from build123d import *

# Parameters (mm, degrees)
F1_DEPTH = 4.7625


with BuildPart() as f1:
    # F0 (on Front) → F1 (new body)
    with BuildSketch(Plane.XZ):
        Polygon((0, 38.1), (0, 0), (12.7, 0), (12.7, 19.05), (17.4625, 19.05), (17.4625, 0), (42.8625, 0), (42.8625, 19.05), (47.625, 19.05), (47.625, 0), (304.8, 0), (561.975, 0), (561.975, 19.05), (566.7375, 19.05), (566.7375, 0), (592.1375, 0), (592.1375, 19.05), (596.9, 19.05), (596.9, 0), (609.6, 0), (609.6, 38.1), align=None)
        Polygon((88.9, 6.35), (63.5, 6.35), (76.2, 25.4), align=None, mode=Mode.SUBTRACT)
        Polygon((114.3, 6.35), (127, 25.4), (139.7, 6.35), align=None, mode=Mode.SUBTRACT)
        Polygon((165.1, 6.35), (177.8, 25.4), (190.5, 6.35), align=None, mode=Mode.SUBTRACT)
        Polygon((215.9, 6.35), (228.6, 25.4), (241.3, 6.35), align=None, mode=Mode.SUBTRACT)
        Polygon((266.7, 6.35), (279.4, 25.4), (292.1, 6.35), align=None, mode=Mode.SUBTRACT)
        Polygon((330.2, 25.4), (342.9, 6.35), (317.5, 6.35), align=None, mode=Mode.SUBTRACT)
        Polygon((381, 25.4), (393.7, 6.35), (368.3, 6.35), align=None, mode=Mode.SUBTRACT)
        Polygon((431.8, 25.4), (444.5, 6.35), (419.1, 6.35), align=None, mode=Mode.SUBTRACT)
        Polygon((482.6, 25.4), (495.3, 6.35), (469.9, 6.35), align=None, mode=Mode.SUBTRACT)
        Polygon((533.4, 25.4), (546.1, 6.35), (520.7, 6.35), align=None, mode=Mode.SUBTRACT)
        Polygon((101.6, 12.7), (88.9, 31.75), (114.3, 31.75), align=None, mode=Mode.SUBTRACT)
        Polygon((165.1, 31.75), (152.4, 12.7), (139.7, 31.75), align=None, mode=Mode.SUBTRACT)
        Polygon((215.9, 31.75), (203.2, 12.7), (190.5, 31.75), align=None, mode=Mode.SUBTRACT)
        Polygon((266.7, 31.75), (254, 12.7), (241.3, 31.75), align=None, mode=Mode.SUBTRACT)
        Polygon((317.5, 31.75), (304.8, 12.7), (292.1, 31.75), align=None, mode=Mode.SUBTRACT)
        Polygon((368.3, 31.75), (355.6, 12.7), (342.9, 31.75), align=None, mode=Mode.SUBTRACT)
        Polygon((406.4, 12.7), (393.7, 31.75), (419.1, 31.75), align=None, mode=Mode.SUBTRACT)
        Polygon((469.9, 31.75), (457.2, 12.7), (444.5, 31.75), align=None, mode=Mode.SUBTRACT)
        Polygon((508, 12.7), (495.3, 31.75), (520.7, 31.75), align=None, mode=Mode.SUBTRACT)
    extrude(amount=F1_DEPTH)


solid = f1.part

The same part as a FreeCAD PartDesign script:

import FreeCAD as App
import Part
import Sketcher

V = App.Vector
Q = App.Units.Quantity

doc = App.newDocument("Part")
body = doc.addObject("PartDesign::Body", "Body")

# Sketch on XZ plane
sketch1 = body.newObject("Sketcher::SketchObject", "Sketch")
sketch1.AttachmentSupport = (doc.getObject("XZ_Plane"), [""])
sketch1.MapMode = "FlatFace"
sketch1.addGeometry(Part.LineSegment(V(0, 38.1, 0), V(0, 0, 0)), False)
sketch1.addGeometry(Part.LineSegment(V(0, 0, 0), V(12.7, 0, 0)), False)
sketch1.addGeometry(Part.LineSegment(V(12.7, 0, 0), V(12.7, 19.1, 0)), False)
sketch1.addGeometry(Part.LineSegment(V(12.7, 19.1, 0), V(17.5, 19.1, 0)), False)
sketch1.addGeometry(Part.LineSegment(V(17.5, 19.1, 0), V(17.5, 0, 0)), False)
sketch1.addGeometry(Part.LineSegment(V(17.5, 0, 0), V(42.9, 0, 0)), False)
sketch1.addGeometry(Part.LineSegment(V(42.9, 0, 0), V(42.9, 19.1, 0)), False)
sketch1.addGeometry(Part.LineSegment(V(42.9, 19.1, 0), V(47.6, 19.1, 0)), False)
sketch1.addGeometry(Part.LineSegment(V(47.6, 19.1, 0), V(47.6, 0, 0)), False)
sketch1.addGeometry(Part.LineSegment(V(47.6, 0, 0), V(562, 0, 0)), False)
sketch1.addGeometry(Part.LineSegment(V(562, 0, 0), V(562, 19.1, 0)), False)
sketch1.addGeometry(Part.LineSegment(V(562, 19.1, 0), V(566.7, 19.1, 0)), False)
sketch1.addGeometry(Part.LineSegment(V(566.7, 19.1, 0), V(566.7, 0, 0)), False)
sketch1.addGeometry(Part.LineSegment(V(566.7, 0, 0), V(592.1, 0, 0)), False)
sketch1.addGeometry(Part.LineSegment(V(592.1, 0, 0), V(592.1, 19.1, 0)), False)
sketch1.addGeometry(Part.LineSegment(V(592.1, 19.1, 0), V(596.9, 19.1, 0)), False)
sketch1.addGeometry(Part.LineSegment(V(596.9, 19.1, 0), V(596.9, 0, 0)), False)
sketch1.addGeometry(Part.LineSegment(V(596.9, 0, 0), V(609.6, 0, 0)), False)
sketch1.addGeometry(Part.LineSegment(V(609.6, 0, 0), V(609.6, 38.1, 0)), False)
sketch1.addGeometry(Part.LineSegment(V(609.6, 38.1, 0), V(0, 38.1, 0)), False)
sketch1.addGeometry(Part.LineSegment(V(76.2, 25.4, 0), V(88.9, 6.3, 0)), False)
sketch1.addGeometry(Part.LineSegment(V(88.9, 6.3, 0), V(63.5, 6.3, 0)), False)
sketch1.addGeometry(Part.LineSegment(V(63.5, 6.3, 0), V(76.2, 25.4, 0)), False)
sketch1.addGeometry(Part.LineSegment(V(139.7, 6.3, 0), V(114.3, 6.3, 0)), False)
sketch1.addGeometry(Part.LineSegment(V(114.3, 6.3, 0), V(127, 25.4, 0)), False)
sketch1.addGeometry(Part.LineSegment(V(127, 25.4, 0), V(139.7, 6.3, 0)), False)
sketch1.addGeometry(Part.LineSegment(V(190.5, 6.3, 0), V(165.1, 6.3, 0)), False)
sketch1.addGeometry(Part.LineSegment(V(165.1, 6.3, 0), V(177.8, 25.4, 0)), False)
sketch1.addGeometry(Part.LineSegment(V(177.8, 25.4, 0), V(190.5, 6.3, 0)), False)
sketch1.addGeometry(Part.LineSegment(V(241.3, 6.3, 0), V(215.9, 6.3, 0)), False)
sketch1.addGeometry(Part.LineSegment(V(215.9, 6.3, 0), V(228.6, 25.4, 0)), False)
sketch1.addGeometry(Part.LineSegment(V(228.6, 25.4, 0), V(241.3, 6.3, 0)), False)
sketch1.addGeometry(Part.LineSegment(V(292.1, 6.3, 0), V(266.7, 6.3, 0)), False)
sketch1.addGeometry(Part.LineSegment(V(266.7, 6.3, 0), V(279.4, 25.4, 0)), False)
sketch1.addGeometry(Part.LineSegment(V(279.4, 25.4, 0), V(292.1, 6.3, 0)), False)
sketch1.addGeometry(Part.LineSegment(V(317.5, 6.3, 0), V(330.2, 25.4, 0)), False)
sketch1.addGeometry(Part.LineSegment(V(330.2, 25.4, 0), V(342.9, 6.3, 0)), False)
sketch1.addGeometry(Part.LineSegment(V(342.9, 6.3, 0), V(317.5, 6.3, 0)), False)
sketch1.addGeometry(Part.LineSegment(V(368.3, 6.3, 0), V(381, 25.4, 0)), False)
sketch1.addGeometry(Part.LineSegment(V(381, 25.4, 0), V(393.7, 6.3, 0)), False)
sketch1.addGeometry(Part.LineSegment(V(393.7, 6.3, 0), V(368.3, 6.3, 0)), False)
sketch1.addGeometry(Part.LineSegment(V(419.1, 6.3, 0), V(431.8, 25.4, 0)), False)
sketch1.addGeometry(Part.LineSegment(V(431.8, 25.4, 0), V(444.5, 6.3, 0)), False)
sketch1.addGeometry(Part.LineSegment(V(444.5, 6.3, 0), V(419.1, 6.3, 0)), False)
sketch1.addGeometry(Part.LineSegment(V(469.9, 6.3, 0), V(482.6, 25.4, 0)), False)
sketch1.addGeometry(Part.LineSegment(V(482.6, 25.4, 0), V(495.3, 6.3, 0)), False)
sketch1.addGeometry(Part.LineSegment(V(495.3, 6.3, 0), V(469.9, 6.3, 0)), False)
sketch1.addGeometry(Part.LineSegment(V(520.7, 6.3, 0), V(533.4, 25.4, 0)), False)
sketch1.addGeometry(Part.LineSegment(V(533.4, 25.4, 0), V(546.1, 6.3, 0)), False)
sketch1.addGeometry(Part.LineSegment(V(546.1, 6.3, 0), V(520.7, 6.3, 0)), False)
sketch1.addGeometry(Part.LineSegment(V(114.3, 31.8, 0), V(101.6, 12.7, 0)), False)
sketch1.addGeometry(Part.LineSegment(V(101.6, 12.7, 0), V(88.9, 31.8, 0)), False)
sketch1.addGeometry(Part.LineSegment(V(88.9, 31.8, 0), V(114.3, 31.8, 0)), False)
sketch1.addGeometry(Part.LineSegment(V(139.7, 31.8, 0), V(165.1, 31.8, 0)), False)
sketch1.addGeometry(Part.LineSegment(V(165.1, 31.8, 0), V(152.4, 12.7, 0)), False)
sketch1.addGeometry(Part.LineSegment(V(152.4, 12.7, 0), V(139.7, 31.8, 0)), False)
sketch1.addGeometry(Part.LineSegment(V(190.5, 31.8, 0), V(215.9, 31.8, 0)), False)
sketch1.addGeometry(Part.LineSegment(V(215.9, 31.8, 0), V(203.2, 12.7, 0)), False)
sketch1.addGeometry(Part.LineSegment(V(203.2, 12.7, 0), V(190.5, 31.8, 0)), False)
sketch1.addGeometry(Part.LineSegment(V(241.3, 31.8, 0), V(266.7, 31.8, 0)), False)
sketch1.addGeometry(Part.LineSegment(V(266.7, 31.8, 0), V(254, 12.7, 0)), False)
sketch1.addGeometry(Part.LineSegment(V(254, 12.7, 0), V(241.3, 31.8, 0)), False)
sketch1.addGeometry(Part.LineSegment(V(292.1, 31.8, 0), V(317.5, 31.8, 0)), False)
sketch1.addGeometry(Part.LineSegment(V(317.5, 31.8, 0), V(304.8, 12.7, 0)), False)
sketch1.addGeometry(Part.LineSegment(V(304.8, 12.7, 0), V(292.1, 31.8, 0)), False)
sketch1.addGeometry(Part.LineSegment(V(342.9, 31.8, 0), V(368.3, 31.8, 0)), False)
sketch1.addGeometry(Part.LineSegment(V(368.3, 31.8, 0), V(355.6, 12.7, 0)), False)
sketch1.addGeometry(Part.LineSegment(V(355.6, 12.7, 0), V(342.9, 31.8, 0)), False)
sketch1.addGeometry(Part.LineSegment(V(419.1, 31.8, 0), V(406.4, 12.7, 0)), False)
sketch1.addGeometry(Part.LineSegment(V(406.4, 12.7, 0), V(393.7, 31.8, 0)), False)
sketch1.addGeometry(Part.LineSegment(V(393.7, 31.8, 0), V(419.1, 31.8, 0)), False)
sketch1.addGeometry(Part.LineSegment(V(444.5, 31.8, 0), V(469.9, 31.8, 0)), False)
sketch1.addGeometry(Part.LineSegment(V(469.9, 31.8, 0), V(457.2, 12.7, 0)), False)
sketch1.addGeometry(Part.LineSegment(V(457.2, 12.7, 0), V(444.5, 31.8, 0)), False)
sketch1.addGeometry(Part.LineSegment(V(520.7, 31.8, 0), V(508, 12.7, 0)), False)
sketch1.addGeometry(Part.LineSegment(V(508, 12.7, 0), V(495.3, 31.8, 0)), False)
sketch1.addGeometry(Part.LineSegment(V(495.3, 31.8, 0), V(520.7, 31.8, 0)), False)
sketch1.addConstraint(Sketcher.Constraint("Coincident", 0, 2, 1, 1))
sketch1.addConstraint(Sketcher.Constraint("Coincident", 1, 2, 2, 1))
sketch1.addConstraint(Sketcher.Constraint("Coincident", 2, 2, 3, 1))
sketch1.addConstraint(Sketcher.Constraint("Coincident", 3, 2, 4, 1))
sketch1.addConstraint(Sketcher.Constraint("Coincident", 4, 2, 5, 1))
sketch1.addConstraint(Sketcher.Constraint("Coincident", 5, 2, 6, 1))
sketch1.addConstraint(Sketcher.Constraint("Coincident", 6, 2, 7, 1))
sketch1.addConstraint(Sketcher.Constraint("Coincident", 7, 2, 8, 1))
sketch1.addConstraint(Sketcher.Constraint("Coincident", 8, 2, 9, 1))
sketch1.addConstraint(Sketcher.Constraint("Coincident", 9, 2, 10, 1))
sketch1.addConstraint(Sketcher.Constraint("Coincident", 10, 2, 11, 1))
sketch1.addConstraint(Sketcher.Constraint("Coincident", 11, 2, 12, 1))
sketch1.addConstraint(Sketcher.Constraint("Coincident", 12, 2, 13, 1))
sketch1.addConstraint(Sketcher.Constraint("Coincident", 13, 2, 14, 1))
sketch1.addConstraint(Sketcher.Constraint("Coincident", 14, 2, 15, 1))
sketch1.addConstraint(Sketcher.Constraint("Coincident", 15, 2, 16, 1))
sketch1.addConstraint(Sketcher.Constraint("Coincident", 16, 2, 17, 1))
sketch1.addConstraint(Sketcher.Constraint("Coincident", 17, 2, 18, 1))
sketch1.addConstraint(Sketcher.Constraint("Coincident", 18, 2, 19, 1))
sketch1.addConstraint(Sketcher.Constraint("Coincident", 19, 2, 0, 1))
sketch1.addConstraint(Sketcher.Constraint("Coincident", 20, 2, 21, 1))
sketch1.addConstraint(Sketcher.Constraint("Coincident", 21, 2, 22, 1))
sketch1.addConstraint(Sketcher.Constraint("Coincident", 22, 2, 20, 1))
sketch1.addConstraint(Sketcher.Constraint("Coincident", 23, 2, 24, 1))
sketch1.addConstraint(Sketcher.Constraint("Coincident", 24, 2, 25, 1))
sketch1.addConstraint(Sketcher.Constraint("Coincident", 25, 2, 23, 1))
sketch1.addConstraint(Sketcher.Constraint("Coincident", 26, 2, 27, 1))
sketch1.addConstraint(Sketcher.Constraint("Coincident", 27, 2, 28, 1))
sketch1.addConstraint(Sketcher.Constraint("Coincident", 28, 2, 26, 1))
sketch1.addConstraint(Sketcher.Constraint("Coincident", 29, 2, 30, 1))
sketch1.addConstraint(Sketcher.Constraint("Coincident", 30, 2, 31, 1))
sketch1.addConstraint(Sketcher.Constraint("Coincident", 31, 2, 29, 1))
sketch1.addConstraint(Sketcher.Constraint("Coincident", 32, 2, 33, 1))
sketch1.addConstraint(Sketcher.Constraint("Coincident", 33, 2, 34, 1))
sketch1.addConstraint(Sketcher.Constraint("Coincident", 34, 2, 32, 1))
sketch1.addConstraint(Sketcher.Constraint("Coincident", 35, 2, 36, 1))
sketch1.addConstraint(Sketcher.Constraint("Coincident", 36, 2, 37, 1))
sketch1.addConstraint(Sketcher.Constraint("Coincident", 37, 2, 35, 1))
sketch1.addConstraint(Sketcher.Constraint("Coincident", 38, 2, 39, 1))
sketch1.addConstraint(Sketcher.Constraint("Coincident", 39, 2, 40, 1))
sketch1.addConstraint(Sketcher.Constraint("Coincident", 40, 2, 38, 1))
sketch1.addConstraint(Sketcher.Constraint("Coincident", 41, 2, 42, 1))
sketch1.addConstraint(Sketcher.Constraint("Coincident", 42, 2, 43, 1))
sketch1.addConstraint(Sketcher.Constraint("Coincident", 43, 2, 41, 1))
sketch1.addConstraint(Sketcher.Constraint("Coincident", 44, 2, 45, 1))
sketch1.addConstraint(Sketcher.Constraint("Coincident", 45, 2, 46, 1))
sketch1.addConstraint(Sketcher.Constraint("Coincident", 46, 2, 44, 1))
sketch1.addConstraint(Sketcher.Constraint("Coincident", 47, 2, 48, 1))
sketch1.addConstraint(Sketcher.Constraint("Coincident", 48, 2, 49, 1))
sketch1.addConstraint(Sketcher.Constraint("Coincident", 49, 2, 47, 1))
sketch1.addConstraint(Sketcher.Constraint("Coincident", 50, 2, 51, 1))
sketch1.addConstraint(Sketcher.Constraint("Coincident", 51, 2, 52, 1))
sketch1.addConstraint(Sketcher.Constraint("Coincident", 52, 2, 50, 1))
sketch1.addConstraint(Sketcher.Constraint("Coincident", 53, 2, 54, 1))
sketch1.addConstraint(Sketcher.Constraint("Coincident", 54, 2, 55, 1))
sketch1.addConstraint(Sketcher.Constraint("Coincident", 55, 2, 53, 1))
sketch1.addConstraint(Sketcher.Constraint("Coincident", 56, 2, 57, 1))
sketch1.addConstraint(Sketcher.Constraint("Coincident", 57, 2, 58, 1))
sketch1.addConstraint(Sketcher.Constraint("Coincident", 58, 2, 56, 1))
sketch1.addConstraint(Sketcher.Constraint("Coincident", 59, 2, 60, 1))
sketch1.addConstraint(Sketcher.Constraint("Coincident", 60, 2, 61, 1))
sketch1.addConstraint(Sketcher.Constraint("Coincident", 61, 2, 59, 1))
sketch1.addConstraint(Sketcher.Constraint("Coincident", 62, 2, 63, 1))
sketch1.addConstraint(Sketcher.Constraint("Coincident", 63, 2, 64, 1))
sketch1.addConstraint(Sketcher.Constraint("Coincident", 64, 2, 62, 1))
sketch1.addConstraint(Sketcher.Constraint("Coincident", 65, 2, 66, 1))
sketch1.addConstraint(Sketcher.Constraint("Coincident", 66, 2, 67, 1))
sketch1.addConstraint(Sketcher.Constraint("Coincident", 67, 2, 65, 1))
sketch1.addConstraint(Sketcher.Constraint("Coincident", 68, 2, 69, 1))
sketch1.addConstraint(Sketcher.Constraint("Coincident", 69, 2, 70, 1))
sketch1.addConstraint(Sketcher.Constraint("Coincident", 70, 2, 68, 1))
sketch1.addConstraint(Sketcher.Constraint("Coincident", 71, 2, 72, 1))
sketch1.addConstraint(Sketcher.Constraint("Coincident", 72, 2, 73, 1))
sketch1.addConstraint(Sketcher.Constraint("Coincident", 73, 2, 71, 1))
sketch1.addConstraint(Sketcher.Constraint("Coincident", 74, 2, 75, 1))
sketch1.addConstraint(Sketcher.Constraint("Coincident", 75, 2, 76, 1))
sketch1.addConstraint(Sketcher.Constraint("Coincident", 76, 2, 74, 1))
sketch1.addConstraint(Sketcher.Constraint("Vertical", 0))
sketch1.addConstraint(Sketcher.Constraint("Horizontal", 1))
sketch1.addConstraint(Sketcher.Constraint("Vertical", 2))
sketch1.addConstraint(Sketcher.Constraint("Horizontal", 3))
sketch1.addConstraint(Sketcher.Constraint("Vertical", 4))
sketch1.addConstraint(Sketcher.Constraint("Horizontal", 5))
sketch1.addConstraint(Sketcher.Constraint("Vertical", 6))
sketch1.addConstraint(Sketcher.Constraint("Horizontal", 7))
sketch1.addConstraint(Sketcher.Constraint("Vertical", 8))
sketch1.addConstraint(Sketcher.Constraint("Horizontal", 9))
sketch1.addConstraint(Sketcher.Constraint("Vertical", 10))
sketch1.addConstraint(Sketcher.Constraint("Horizontal", 11))
sketch1.addConstraint(Sketcher.Constraint("Vertical", 12))
sketch1.addConstraint(Sketcher.Constraint("Horizontal", 13))
sketch1.addConstraint(Sketcher.Constraint("Vertical", 14))
sketch1.addConstraint(Sketcher.Constraint("Horizontal", 15))
sketch1.addConstraint(Sketcher.Constraint("Vertical", 16))
sketch1.addConstraint(Sketcher.Constraint("Horizontal", 17))
sketch1.addConstraint(Sketcher.Constraint("Vertical", 18))
sketch1.addConstraint(Sketcher.Constraint("Horizontal", 19))
sketch1.addConstraint(Sketcher.Constraint("Horizontal", 21))
sketch1.addConstraint(Sketcher.Constraint("Horizontal", 23))
sketch1.addConstraint(Sketcher.Constraint("Horizontal", 26))
sketch1.addConstraint(Sketcher.Constraint("Horizontal", 29))
sketch1.addConstraint(Sketcher.Constraint("Horizontal", 32))
sketch1.addConstraint(Sketcher.Constraint("Horizontal", 37))
sketch1.addConstraint(Sketcher.Constraint("Horizontal", 40))
sketch1.addConstraint(Sketcher.Constraint("Horizontal", 43))
sketch1.addConstraint(Sketcher.Constraint("Horizontal", 46))
sketch1.addConstraint(Sketcher.Constraint("Horizontal", 49))
sketch1.addConstraint(Sketcher.Constraint("Horizontal", 52))
sketch1.addConstraint(Sketcher.Constraint("Horizontal", 53))
sketch1.addConstraint(Sketcher.Constraint("Horizontal", 56))
sketch1.addConstraint(Sketcher.Constraint("Horizontal", 59))
sketch1.addConstraint(Sketcher.Constraint("Horizontal", 62))
sketch1.addConstraint(Sketcher.Constraint("Horizontal", 65))
sketch1.addConstraint(Sketcher.Constraint("Horizontal", 70))
sketch1.addConstraint(Sketcher.Constraint("Horizontal", 71))
sketch1.addConstraint(Sketcher.Constraint("Horizontal", 76))
sketch1.addConstraint(Sketcher.Constraint("Coincident", 0, 2, -1, 1))
sketch1.addConstraint(Sketcher.Constraint("PointOnObject", 4, 2, -1))
sketch1.addConstraint(Sketcher.Constraint("PointOnObject", 8, 2, -1))
sketch1.addConstraint(Sketcher.Constraint("PointOnObject", 12, 2, -1))
sketch1.addConstraint(Sketcher.Constraint("PointOnObject", 16, 2, -1))
sketch1.addConstraint(Sketcher.Constraint("Parallel", 22, 24))
sketch1.addConstraint(Sketcher.Constraint("Parallel", 20, 25))
sketch1.addConstraint(Sketcher.Constraint("Parallel", 24, 27))
sketch1.addConstraint(Sketcher.Constraint("Parallel", 25, 28))
sketch1.addConstraint(Sketcher.Constraint("Parallel", 27, 30))
sketch1.addConstraint(Sketcher.Constraint("Parallel", 28, 31))
sketch1.addConstraint(Sketcher.Constraint("Parallel", 30, 33))
sketch1.addConstraint(Sketcher.Constraint("Parallel", 31, 34))
sketch1.addConstraint(Sketcher.Constraint("Parallel", 33, 35))
sketch1.addConstraint(Sketcher.Constraint("Parallel", 34, 36))
sketch1.addConstraint(Sketcher.Constraint("Parallel", 35, 38))
sketch1.addConstraint(Sketcher.Constraint("Parallel", 36, 39))
sketch1.addConstraint(Sketcher.Constraint("Parallel", 38, 41))
sketch1.addConstraint(Sketcher.Constraint("Parallel", 39, 42))
sketch1.addConstraint(Sketcher.Constraint("Parallel", 41, 44))
sketch1.addConstraint(Sketcher.Constraint("Parallel", 42, 45))
sketch1.addConstraint(Sketcher.Constraint("Parallel", 44, 47))
sketch1.addConstraint(Sketcher.Constraint("Parallel", 45, 48))
sketch1.addConstraint(Sketcher.Constraint("Parallel", 47, 50))
sketch1.addConstraint(Sketcher.Constraint("Parallel", 48, 51))
sketch1.addConstraint(Sketcher.Constraint("Parallel", 50, 54))
sketch1.addConstraint(Sketcher.Constraint("Parallel", 51, 55))
sketch1.addConstraint(Sketcher.Constraint("Parallel", 54, 57))
sketch1.addConstraint(Sketcher.Constraint("Parallel", 55, 58))
sketch1.addConstraint(Sketcher.Constraint("Parallel", 57, 60))
sketch1.addConstraint(Sketcher.Constraint("Parallel", 58, 61))
sketch1.addConstraint(Sketcher.Constraint("Parallel", 60, 63))
sketch1.addConstraint(Sketcher.Constraint("Parallel", 61, 64))
sketch1.addConstraint(Sketcher.Constraint("Parallel", 63, 66))
sketch1.addConstraint(Sketcher.Constraint("Parallel", 64, 67))
sketch1.addConstraint(Sketcher.Constraint("Parallel", 66, 68))
sketch1.addConstraint(Sketcher.Constraint("Parallel", 67, 69))
sketch1.addConstraint(Sketcher.Constraint("Parallel", 68, 72))
sketch1.addConstraint(Sketcher.Constraint("Parallel", 69, 73))
sketch1.addConstraint(Sketcher.Constraint("Parallel", 72, 74))
sketch1.addConstraint(Sketcher.Constraint("Parallel", 73, 75))
sketch1.addConstraint(Sketcher.Constraint("Horizontal", 3, 2, 6, 2))
sketch1.addConstraint(Sketcher.Constraint("Horizontal", 7, 2, 10, 2))
sketch1.addConstraint(Sketcher.Constraint("Horizontal", 11, 2, 14, 2))
sketch1.addConstraint(Sketcher.Constraint("Horizontal", 21, 2, 23, 2))
sketch1.addConstraint(Sketcher.Constraint("Horizontal", 22, 2, 24, 2))
sketch1.addConstraint(Sketcher.Constraint("Horizontal", 25, 2, 26, 2))
sketch1.addConstraint(Sketcher.Constraint("Horizontal", 24, 2, 27, 2))
sketch1.addConstraint(Sketcher.Constraint("Horizontal", 28, 2, 29, 2))
sketch1.addConstraint(Sketcher.Constraint("Horizontal", 27, 2, 30, 2))
sketch1.addConstraint(Sketcher.Constraint("Horizontal", 31, 2, 32, 2))
sketch1.addConstraint(Sketcher.Constraint("Horizontal", 30, 2, 33, 2))
sketch1.addConstraint(Sketcher.Constraint("Horizontal", 33, 2, 35, 2))
sketch1.addConstraint(Sketcher.Constraint("Horizontal", 34, 2, 36, 2))
sketch1.addConstraint(Sketcher.Constraint("Horizontal", 35, 2, 38, 2))
sketch1.addConstraint(Sketcher.Constraint("Horizontal", 37, 2, 39, 2))
sketch1.addConstraint(Sketcher.Constraint("Horizontal", 38, 2, 41, 2))
sketch1.addConstraint(Sketcher.Constraint("Horizontal", 40, 2, 42, 2))
sketch1.addConstraint(Sketcher.Constraint("Horizontal", 41, 2, 44, 2))
sketch1.addConstraint(Sketcher.Constraint("Horizontal", 43, 2, 45, 2))
sketch1.addConstraint(Sketcher.Constraint("Horizontal", 44, 2, 47, 2))
sketch1.addConstraint(Sketcher.Constraint("Horizontal", 46, 2, 48, 2))
sketch1.addConstraint(Sketcher.Constraint("Horizontal", 52, 2, 53, 2))
sketch1.addConstraint(Sketcher.Constraint("Horizontal", 50, 2, 54, 2))
sketch1.addConstraint(Sketcher.Constraint("Horizontal", 55, 2, 56, 2))
sketch1.addConstraint(Sketcher.Constraint("Horizontal", 54, 2, 57, 2))
sketch1.addConstraint(Sketcher.Constraint("Horizontal", 58, 2, 59, 2))
sketch1.addConstraint(Sketcher.Constraint("Horizontal", 57, 2, 60, 2))
sketch1.addConstraint(Sketcher.Constraint("Horizontal", 61, 2, 62, 2))
sketch1.addConstraint(Sketcher.Constraint("Horizontal", 60, 2, 63, 2))
sketch1.addConstraint(Sketcher.Constraint("Horizontal", 64, 2, 65, 2))
sketch1.addConstraint(Sketcher.Constraint("Horizontal", 63, 2, 66, 2))
sketch1.addConstraint(Sketcher.Constraint("Horizontal", 66, 2, 68, 2))
sketch1.addConstraint(Sketcher.Constraint("Horizontal", 67, 2, 69, 2))
sketch1.addConstraint(Sketcher.Constraint("Horizontal", 70, 2, 71, 2))
sketch1.addConstraint(Sketcher.Constraint("Horizontal", 68, 2, 72, 2))
sketch1.addConstraint(Sketcher.Constraint("Horizontal", 72, 2, 74, 2))
sketch1.addConstraint(Sketcher.Constraint("Horizontal", 73, 2, 75, 2))
sketch1.addConstraint(Sketcher.Constraint("Vertical", 20, 2, 51, 2))
sketch1.addConstraint(Sketcher.Constraint("Vertical", 23, 2, 52, 2))
sketch1.addConstraint(Sketcher.Constraint("Vertical", 26, 2, 53, 2))
sketch1.addConstraint(Sketcher.Constraint("Vertical", 25, 2, 55, 2))
sketch1.addConstraint(Sketcher.Constraint("Vertical", 29, 2, 56, 2))
sketch1.addConstraint(Sketcher.Constraint("Vertical", 28, 2, 58, 2))
sketch1.addConstraint(Sketcher.Constraint("Vertical", 32, 2, 59, 2))
sketch1.addConstraint(Sketcher.Constraint("Vertical", 31, 2, 61, 2))
sketch1.addConstraint(Sketcher.Constraint("Vertical", 37, 2, 62, 2))
sketch1.addConstraint(Sketcher.Constraint("Vertical", 34, 2, 64, 2))
sketch1.addConstraint(Sketcher.Constraint("Vertical", 40, 2, 65, 2))
sketch1.addConstraint(Sketcher.Constraint("Vertical", 36, 2, 67, 2))
sketch1.addConstraint(Sketcher.Constraint("Vertical", 39, 2, 69, 2))
sketch1.addConstraint(Sketcher.Constraint("Vertical", 43, 2, 70, 2))
sketch1.addConstraint(Sketcher.Constraint("Vertical", 46, 2, 71, 2))
sketch1.addConstraint(Sketcher.Constraint("Vertical", 42, 2, 73, 2))
sketch1.addConstraint(Sketcher.Constraint("Vertical", 45, 2, 75, 2))
sketch1.addConstraint(Sketcher.Constraint("Vertical", 49, 2, 76, 2))
sketch1.addConstraint(Sketcher.Constraint("Equal", 3, 7))
sketch1.addConstraint(Sketcher.Constraint("Equal", 7, 11))
sketch1.addConstraint(Sketcher.Constraint("Equal", 5, 13))
sketch1.addConstraint(Sketcher.Constraint("Equal", 11, 15))
sketch1.addConstraint(Sketcher.Constraint("Equal", 1, 17))
sketch1.addConstraint(Sketcher.Constraint("Equal", 13, 21))
sketch1.addConstraint(Sketcher.Constraint("Equal", 49, 52))
sketch1.addConstraint(Sketcher.Constraint("Equal", 20, 22))
sketch1.addConstraint(Sketcher.Constraint("DistanceX", 5, 1, 5, 2, Q("1 in")))
sketch1.addConstraint(Sketcher.Constraint("DistanceX", 19, 2, 19, 1, Q("24 in")))
sketch1.addConstraint(Sketcher.Constraint("DistanceX", 1, 1, 1, 2, Q("0.5 in")))
sketch1.addConstraint(Sketcher.Constraint("DistanceY", 0, 2, 0, 1, Q("1.5 in")))
sketch1.addConstraint(Sketcher.Constraint("DistanceX", -1, 1, 22, 2, Q("3 in")))
sketch1.addConstraint(Sketcher.Constraint("DistanceY", -1, 1, 22, 2, Q("1 in")))
sketch1.addConstraint(Sketcher.Constraint("DistanceX", 9, 1, 9, 2, Q("20.25 in")))
sketch1.addConstraint(Sketcher.Constraint("DistanceY", 2, 1, 2, 2, Q("0.75 in")))
sketch1.addConstraint(Sketcher.Constraint("DistanceY", -1, 1, 50, 2, Q("0.5 in")))
sketch1.addConstraint(Sketcher.Constraint("DistanceY", -1, 1, 20, 2, Q("0.25 in")))
pad1 = body.newObject("PartDesign::Pad", "Pad")
pad1.Profile = sketch1
pad1.Length = Q("0.1875 in")

doc.recompute()
